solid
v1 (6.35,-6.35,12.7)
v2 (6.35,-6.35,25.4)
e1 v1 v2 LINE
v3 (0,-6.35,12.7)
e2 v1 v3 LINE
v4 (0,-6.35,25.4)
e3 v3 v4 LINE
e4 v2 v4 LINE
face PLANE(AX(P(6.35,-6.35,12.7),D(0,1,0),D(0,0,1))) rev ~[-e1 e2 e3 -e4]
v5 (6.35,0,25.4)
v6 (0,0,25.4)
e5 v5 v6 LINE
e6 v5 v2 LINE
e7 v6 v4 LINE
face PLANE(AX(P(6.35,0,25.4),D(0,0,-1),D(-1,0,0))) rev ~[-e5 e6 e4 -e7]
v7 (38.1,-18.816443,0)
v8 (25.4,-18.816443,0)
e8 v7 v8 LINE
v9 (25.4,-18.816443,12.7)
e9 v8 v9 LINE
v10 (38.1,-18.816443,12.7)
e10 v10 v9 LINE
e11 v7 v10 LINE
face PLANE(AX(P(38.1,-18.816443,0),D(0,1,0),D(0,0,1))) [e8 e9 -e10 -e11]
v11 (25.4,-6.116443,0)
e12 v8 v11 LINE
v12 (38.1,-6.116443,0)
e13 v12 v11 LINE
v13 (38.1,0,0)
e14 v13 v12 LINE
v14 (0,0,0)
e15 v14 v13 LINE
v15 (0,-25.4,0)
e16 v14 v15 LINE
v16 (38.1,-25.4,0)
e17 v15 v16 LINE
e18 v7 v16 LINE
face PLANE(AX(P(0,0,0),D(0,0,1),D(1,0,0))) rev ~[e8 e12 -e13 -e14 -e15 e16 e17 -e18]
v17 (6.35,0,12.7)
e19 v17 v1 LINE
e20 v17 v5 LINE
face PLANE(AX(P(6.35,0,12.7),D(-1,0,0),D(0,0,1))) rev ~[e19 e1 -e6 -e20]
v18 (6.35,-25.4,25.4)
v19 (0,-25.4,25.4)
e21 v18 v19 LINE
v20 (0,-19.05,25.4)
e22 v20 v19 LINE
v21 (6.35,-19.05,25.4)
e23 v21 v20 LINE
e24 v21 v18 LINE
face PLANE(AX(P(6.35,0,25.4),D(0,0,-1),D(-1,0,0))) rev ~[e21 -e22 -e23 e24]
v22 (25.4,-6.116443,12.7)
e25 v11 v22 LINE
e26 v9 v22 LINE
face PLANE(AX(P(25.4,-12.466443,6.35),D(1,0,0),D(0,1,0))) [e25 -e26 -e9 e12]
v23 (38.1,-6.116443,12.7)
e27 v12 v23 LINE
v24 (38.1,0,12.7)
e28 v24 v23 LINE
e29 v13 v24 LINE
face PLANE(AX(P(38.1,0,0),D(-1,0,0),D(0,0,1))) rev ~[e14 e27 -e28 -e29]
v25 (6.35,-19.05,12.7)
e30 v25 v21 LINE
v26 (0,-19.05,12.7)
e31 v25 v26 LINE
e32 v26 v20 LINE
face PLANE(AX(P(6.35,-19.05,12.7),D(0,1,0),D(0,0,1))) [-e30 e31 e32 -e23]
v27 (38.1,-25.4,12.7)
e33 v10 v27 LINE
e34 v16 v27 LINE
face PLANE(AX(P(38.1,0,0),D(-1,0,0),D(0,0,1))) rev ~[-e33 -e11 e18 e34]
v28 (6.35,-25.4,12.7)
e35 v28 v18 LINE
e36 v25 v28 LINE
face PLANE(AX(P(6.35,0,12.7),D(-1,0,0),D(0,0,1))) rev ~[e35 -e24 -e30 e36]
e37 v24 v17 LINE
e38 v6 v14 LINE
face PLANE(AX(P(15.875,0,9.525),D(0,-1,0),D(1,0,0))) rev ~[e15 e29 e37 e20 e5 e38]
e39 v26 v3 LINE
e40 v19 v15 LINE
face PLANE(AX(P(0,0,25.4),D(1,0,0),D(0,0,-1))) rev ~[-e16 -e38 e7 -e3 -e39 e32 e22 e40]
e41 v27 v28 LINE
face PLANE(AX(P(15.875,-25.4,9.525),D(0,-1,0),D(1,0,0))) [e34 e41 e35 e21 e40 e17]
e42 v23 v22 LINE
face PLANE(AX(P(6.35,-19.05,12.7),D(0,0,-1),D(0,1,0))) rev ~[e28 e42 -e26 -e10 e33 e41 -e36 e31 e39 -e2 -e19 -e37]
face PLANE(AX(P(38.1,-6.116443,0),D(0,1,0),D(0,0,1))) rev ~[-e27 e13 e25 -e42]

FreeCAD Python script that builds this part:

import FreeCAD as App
import Part
import Sketcher
Q = App.Units.Quantity


def add_polygon(sketch, points):
    """Adds a closed chain of lines whose ends are joined by coincident constraints."""
    first, n = sketch.GeometryCount, len(points)
    for a, b in zip(points, points[1:] + points[:1]):
        sketch.addGeometry(Part.LineSegment(App.Vector(*a, 0), App.Vector(*b, 0)), False)
    for i in range(n):
        sketch.addConstraint(Sketcher.Constraint("Coincident", first + i, 2, first + (i + 1) % n, 1))

doc = App.newDocument("Part")
body = doc.addObject("PartDesign::Body", "Body")

sketch1 = doc.addObject("Sketcher::SketchObject", "Sketch")
body.addObject(sketch1)
sketch1.AttachmentSupport = (doc.XZ_Plane, [""])
sketch1.MapMode = "FlatFace"
add_polygon(sketch1, [(0, 25.4), (0, 0), (38.1, 0), (38.1, 12.7), (6.35, 12.7), (6.35, 25.4)])
sketch1.addConstraint(Sketcher.Constraint("Vertical", 0))
sketch1.addConstraint(Sketcher.Constraint("Horizontal", 1))
sketch1.addConstraint(Sketcher.Constraint("Vertical", 2))
sketch1.addConstraint(Sketcher.Constraint("Horizontal", 3))
sketch1.addConstraint(Sketcher.Constraint("Vertical", 4))
sketch1.addConstraint(Sketcher.Constraint("Horizontal", 5))
sketch1.addConstraint(Sketcher.Constraint("Coincident", 0, 2, -1, 1))
sketch1.addConstraint(Sketcher.Constraint("Equal", 2, 4))
sketch1.addConstraint(Sketcher.Constraint("DistanceY", 0, 2, 0, 1, Q("1 in")))
sketch1.addConstraint(Sketcher.Constraint("DistanceX", 1, 1, 1, 2, Q("1.5 in")))
sketch1.addConstraint(Sketcher.Constraint("DistanceX", 3, 2, 3, 1, Q("1.25 in")))
pad1 = doc.addObject("PartDesign::Pad", "Pad")
body.addObject(pad1)
pad1.Profile = sketch1
pad1.Length = Q("1 in")

sketch2 = doc.addObject("Sketcher::SketchObject", "Sketch001")
body.addObject(sketch2)
sketch2.AttachmentSupport = (doc.YZ_Plane, [""])
sketch2.MapMode = "FlatFace"
sketch2.AttachmentOffset = App.Placement(App.Vector(0, 0, 0.25 * 25.4), App.Rotation())
add_polygon(sketch2, [(-19.05, 25.4), (-19.05, 12.7), (-6.35, 12.7), (-6.35, 25.4)])
sketch2.addConstraint(Sketcher.Constraint("Vertical", 0))
sketch2.addConstraint(Sketcher.Constraint("Horizontal", 1))
sketch2.addConstraint(Sketcher.Constraint("Vertical", 2))
sketch2.addConstraint(Sketcher.Constraint("Horizontal", 3))
sketch2.addConstraint(Sketcher.Constraint("Equal", 3, 0))
sketch2.addConstraint(Sketcher.Constraint("DistanceX", 1, 1, 1, 2, Q("0.5 in")))
sketch2.addConstraint(Sketcher.Constraint("DistanceY", -1, 1, 2, 2, Q("1 in")))
sketch2.addConstraint(Sketcher.Constraint("DistanceX", 0, 2, -1, 1, Q("0.75 in")))
pocket1 = doc.addObject("PartDesign::Pocket", "Pocket")
body.addObject(pocket1)
pocket1.Profile = sketch2
pocket1.Length = Q("1 in")

sketch3 = doc.addObject("Sketcher::SketchObject", "Sketch002")
body.addObject(sketch3)
sketch3.AttachmentSupport = (doc.YZ_Plane, [""])
sketch3.MapMode = "FlatFace"
sketch3.AttachmentOffset = App.Placement(App.Vector(0, 0, 1.5 * 25.4), App.Rotation())
add_polygon(sketch3, [(-18.816443, 12.7), (-18.816443, 0), (-6.116443, 0), (-6.116443, 12.7)])
sketch3.addConstraint(Sketcher.Constraint("Vertical", 0))
sketch3.addConstraint(Sketcher.Constraint("Horizontal", 1))
sketch3.addConstraint(Sketcher.Constraint("Vertical", 2))
sketch3.addConstraint(Sketcher.Constraint("Horizontal", 3))
sketch3.addConstraint(Sketcher.Constraint("PointOnObject", 0, 2, -1))
sketch3.addConstraint(Sketcher.Constraint("Equal", 3, 0))
sketch3.addConstraint(Sketcher.Constraint("DistanceX", 1, 1, 1, 2, Q("0.5 in")))
sketch3.addConstraint(Sketcher.Constraint("DistanceX", 0, 2, -1, 1, Q("18.816443 mm")))
pocket2 = doc.addObject("PartDesign::Pocket", "Pocket001")
body.addObject(pocket2)
pocket2.Profile = sketch3
pocket2.Length = Q("0.5 in")

doc.recompute()
